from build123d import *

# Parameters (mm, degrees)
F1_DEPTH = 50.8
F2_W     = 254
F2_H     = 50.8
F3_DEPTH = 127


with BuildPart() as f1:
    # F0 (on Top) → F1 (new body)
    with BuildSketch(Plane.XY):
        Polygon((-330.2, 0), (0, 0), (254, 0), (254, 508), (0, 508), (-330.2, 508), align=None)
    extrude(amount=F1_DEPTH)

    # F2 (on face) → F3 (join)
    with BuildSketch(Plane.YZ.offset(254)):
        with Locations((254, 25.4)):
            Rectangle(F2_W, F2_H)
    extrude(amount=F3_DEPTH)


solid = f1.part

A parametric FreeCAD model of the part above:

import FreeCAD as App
import Part
import Sketcher
from FreeCAD import Vector
Q = App.Units.Quantity

doc = App.newDocument("Part")
body = doc.addObject("PartDesign::Body", "Body")

# Sketch on XY plane
sketch1 = body.newObject("Sketcher::SketchObject", "Sketch")
sketch1.AttachmentSupport = (doc.getObject("XY_Plane"), [""])
sketch1.MapMode = "FlatFace"
sketch1.addGeometry(Part.LineSegment(Vector(-330, 0, 0), Vector(254, 0, 0)), False)
sketch1.addGeometry(Part.LineSegment(Vector(254, 0, 0), Vector(254, 508, 0)), False)
sketch1.addGeometry(Part.LineSegment(Vector(254, 508, 0), Vector(-330, 508, 0)), False)
sketch1.addGeometry(Part.LineSegment(Vector(-330, 508, 0), Vector(-330, 0, 0)), False)
sketch1.addConstraint(Sketcher.Constraint("Coincident", 0, 2, 1, 1))
sketch1.addConstraint(Sketcher.Constraint("Coincident", 1, 2, 2, 1))
sketch1.addConstraint(Sketcher.Constraint("Coincident", 2, 2, 3, 1))
sketch1.addConstraint(Sketcher.Constraint("Coincident", 3, 2, 0, 1))
sketch1.addConstraint(Sketcher.Constraint("Horizontal", 0))
sketch1.addConstraint(Sketcher.Constraint("Vertical", 1))
sketch1.addConstraint(Sketcher.Constraint("Horizontal", 2))
sketch1.addConstraint(Sketcher.Constraint("Vertical", 3))
sketch1.addConstraint(Sketcher.Constraint("PointOnObject", 0, 2, -1))
sketch1.addConstraint(Sketcher.Constraint("DistanceX", 0, 1, 0, 2, Q("23 in")))
sketch1.addConstraint(Sketcher.Constraint("DistanceY", 1, 1, 1, 2, Q("20 in")))
sketch1.addConstraint(Sketcher.Constraint("DistanceX", -1, 1, 0, 2, Q("10 in")))
pad1 = body.newObject("PartDesign::Pad", "Pad")
pad1.Profile = sketch1
pad1.Length = Q("2 in")

# Sketch on YZ plane
sketch2 = body.newObject("Sketcher::SketchObject", "Sketch001")
sketch2.AttachmentSupport = (doc.getObject("YZ_Plane"), [""])
sketch2.MapMode = "FlatFace"
sketch2.AttachmentOffset = App.Placement(Vector(0, 0, 10 * 25.4), App.Rotation())
sketch2.addGeometry(Part.LineSegment(Vector(127, 51, 0), Vector(127, 0, 0)), False)
sketch2.addGeometry(Part.LineSegment(Vector(127, 0, 0), Vector(381, 0, 0)), False)
sketch2.addGeometry(Part.LineSegment(Vector(381, 0, 0), Vector(381, 51, 0)), False)
sketch2.addGeometry(Part.LineSegment(Vector(381, 51, 0), Vector(127, 51, 0)), False)
sketch2.addConstraint(Sketcher.Constraint("Coincident", 0, 2, 1, 1))
sketch2.addConstraint(Sketcher.Constraint("Coincident", 1, 2, 2, 1))
sketch2.addConstraint(Sketcher.Constraint("Coincident", 2, 2, 3, 1))
sketch2.addConstraint(Sketcher.Constraint("Coincident", 3, 2, 0, 1))
sketch2.addConstraint(Sketcher.Constraint("Vertical", 0))
sketch2.addConstraint(Sketcher.Constraint("Horizontal", 1))
sketch2.addConstraint(Sketcher.Constraint("Vertical", 2))
sketch2.addConstraint(Sketcher.Constraint("Horizontal", 3))
sketch2.addConstraint(Sketcher.Constraint("PointOnObject", 0, 2, -1))
sketch2.addConstraint(Sketcher.Constraint("DistanceX", 1, 1, 1, 2, Q("10 in")))
sketch2.addConstraint(Sketcher.Constraint("DistanceY", 0, 2, 0, 1, Q("2 in")))
sketch2.addConstraint(Sketcher.Constraint("DistanceX", -1, 1, 0, 2, Q("5 in")))
pad2 = body.newObject("PartDesign::Pad", "Pad001")
pad2.Profile = sketch2
pad2.Length = Q("5 in")

doc.recompute()
